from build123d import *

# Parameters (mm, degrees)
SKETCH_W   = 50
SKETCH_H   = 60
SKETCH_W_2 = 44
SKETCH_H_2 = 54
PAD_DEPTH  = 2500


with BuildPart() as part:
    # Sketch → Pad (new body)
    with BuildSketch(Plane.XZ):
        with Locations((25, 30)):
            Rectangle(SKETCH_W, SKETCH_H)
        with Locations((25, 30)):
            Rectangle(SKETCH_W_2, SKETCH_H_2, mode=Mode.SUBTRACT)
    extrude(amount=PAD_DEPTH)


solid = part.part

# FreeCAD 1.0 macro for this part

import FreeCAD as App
import Part
import Sketcher

V = App.Vector
Q = App.Units.Quantity

doc = App.newDocument("Part")
body = doc.addObject("PartDesign::Body", "Body")

sketch1 = body.newObject("Sketcher::SketchObject", "Sketch")
sketch1.AttachmentSupport = (doc.getObject("XZ_Plane"), [""])
sketch1.MapMode = "FlatFace"
sketch1.addGeometry([
    Part.LineSegment(V(0, 60, 0), V(0, 0, 0)),
    Part.LineSegment(V(0, 0, 0), V(50, 0, 0)),
    Part.LineSegment(V(50, 0, 0), V(50, 60, 0)),
    Part.LineSegment(V(50, 60, 0), V(0, 60, 0)),
    Part.LineSegment(V(47, 3, 0), V(3, 3, 0)),
    Part.LineSegment(V(3, 3, 0), V(3, 57, 0)),
    Part.LineSegment(V(3, 57, 0), V(47, 57, 0)),
    Part.LineSegment(V(47, 57, 0), V(47, 3, 0)),
], False)
sketch1.addConstraint([
    Sketcher.Constraint("Coincident", 0, 2, 1, 1),
    Sketcher.Constraint("Coincident", 1, 2, 2, 1),
    Sketcher.Constraint("Coincident", 2, 2, 3, 1),
    Sketcher.Constraint("Coincident", 3, 2, 0, 1),
    Sketcher.Constraint("Coincident", 4, 2, 5, 1),
    Sketcher.Constraint("Coincident", 5, 2, 6, 1),
    Sketcher.Constraint("Coincident", 6, 2, 7, 1),
    Sketcher.Constraint("Coincident", 7, 2, 4, 1),
    Sketcher.Constraint("Vertical", 0),
    Sketcher.Constraint("Horizontal", 1),
    Sketcher.Constraint("Vertical", 2),
    Sketcher.Constraint("Horizontal", 3),
    Sketcher.Constraint("Horizontal", 4),
    Sketcher.Constraint("Vertical", 5),
    Sketcher.Constraint("Horizontal", 6),
    Sketcher.Constraint("Vertical", 7),
    Sketcher.Constraint("Coincident", 0, 2, -1, 1),
    Sketcher.Constraint("DistanceX", 1, 1, 1, 2, Q("50 mm")),
    Sketcher.Constraint("DistanceX", 4, 2, 4, 1, Q("44 mm")),
    Sketcher.Constraint("DistanceY", 0, 2, 0, 1, Q("60 mm")),
    Sketcher.Constraint("DistanceY", 5, 1, 5, 2, Q("54 mm")),
    Sketcher.Constraint("DistanceX", -1, 1, 4, 2, Q("3 mm")),
    Sketcher.Constraint("DistanceY", -1, 1, 4, 2, Q("3 mm")),
])
pad1 = body.newObject("PartDesign::Pad", "Pad")
pad1.Profile = sketch1
pad1.Length = 2500

doc.recompute()
